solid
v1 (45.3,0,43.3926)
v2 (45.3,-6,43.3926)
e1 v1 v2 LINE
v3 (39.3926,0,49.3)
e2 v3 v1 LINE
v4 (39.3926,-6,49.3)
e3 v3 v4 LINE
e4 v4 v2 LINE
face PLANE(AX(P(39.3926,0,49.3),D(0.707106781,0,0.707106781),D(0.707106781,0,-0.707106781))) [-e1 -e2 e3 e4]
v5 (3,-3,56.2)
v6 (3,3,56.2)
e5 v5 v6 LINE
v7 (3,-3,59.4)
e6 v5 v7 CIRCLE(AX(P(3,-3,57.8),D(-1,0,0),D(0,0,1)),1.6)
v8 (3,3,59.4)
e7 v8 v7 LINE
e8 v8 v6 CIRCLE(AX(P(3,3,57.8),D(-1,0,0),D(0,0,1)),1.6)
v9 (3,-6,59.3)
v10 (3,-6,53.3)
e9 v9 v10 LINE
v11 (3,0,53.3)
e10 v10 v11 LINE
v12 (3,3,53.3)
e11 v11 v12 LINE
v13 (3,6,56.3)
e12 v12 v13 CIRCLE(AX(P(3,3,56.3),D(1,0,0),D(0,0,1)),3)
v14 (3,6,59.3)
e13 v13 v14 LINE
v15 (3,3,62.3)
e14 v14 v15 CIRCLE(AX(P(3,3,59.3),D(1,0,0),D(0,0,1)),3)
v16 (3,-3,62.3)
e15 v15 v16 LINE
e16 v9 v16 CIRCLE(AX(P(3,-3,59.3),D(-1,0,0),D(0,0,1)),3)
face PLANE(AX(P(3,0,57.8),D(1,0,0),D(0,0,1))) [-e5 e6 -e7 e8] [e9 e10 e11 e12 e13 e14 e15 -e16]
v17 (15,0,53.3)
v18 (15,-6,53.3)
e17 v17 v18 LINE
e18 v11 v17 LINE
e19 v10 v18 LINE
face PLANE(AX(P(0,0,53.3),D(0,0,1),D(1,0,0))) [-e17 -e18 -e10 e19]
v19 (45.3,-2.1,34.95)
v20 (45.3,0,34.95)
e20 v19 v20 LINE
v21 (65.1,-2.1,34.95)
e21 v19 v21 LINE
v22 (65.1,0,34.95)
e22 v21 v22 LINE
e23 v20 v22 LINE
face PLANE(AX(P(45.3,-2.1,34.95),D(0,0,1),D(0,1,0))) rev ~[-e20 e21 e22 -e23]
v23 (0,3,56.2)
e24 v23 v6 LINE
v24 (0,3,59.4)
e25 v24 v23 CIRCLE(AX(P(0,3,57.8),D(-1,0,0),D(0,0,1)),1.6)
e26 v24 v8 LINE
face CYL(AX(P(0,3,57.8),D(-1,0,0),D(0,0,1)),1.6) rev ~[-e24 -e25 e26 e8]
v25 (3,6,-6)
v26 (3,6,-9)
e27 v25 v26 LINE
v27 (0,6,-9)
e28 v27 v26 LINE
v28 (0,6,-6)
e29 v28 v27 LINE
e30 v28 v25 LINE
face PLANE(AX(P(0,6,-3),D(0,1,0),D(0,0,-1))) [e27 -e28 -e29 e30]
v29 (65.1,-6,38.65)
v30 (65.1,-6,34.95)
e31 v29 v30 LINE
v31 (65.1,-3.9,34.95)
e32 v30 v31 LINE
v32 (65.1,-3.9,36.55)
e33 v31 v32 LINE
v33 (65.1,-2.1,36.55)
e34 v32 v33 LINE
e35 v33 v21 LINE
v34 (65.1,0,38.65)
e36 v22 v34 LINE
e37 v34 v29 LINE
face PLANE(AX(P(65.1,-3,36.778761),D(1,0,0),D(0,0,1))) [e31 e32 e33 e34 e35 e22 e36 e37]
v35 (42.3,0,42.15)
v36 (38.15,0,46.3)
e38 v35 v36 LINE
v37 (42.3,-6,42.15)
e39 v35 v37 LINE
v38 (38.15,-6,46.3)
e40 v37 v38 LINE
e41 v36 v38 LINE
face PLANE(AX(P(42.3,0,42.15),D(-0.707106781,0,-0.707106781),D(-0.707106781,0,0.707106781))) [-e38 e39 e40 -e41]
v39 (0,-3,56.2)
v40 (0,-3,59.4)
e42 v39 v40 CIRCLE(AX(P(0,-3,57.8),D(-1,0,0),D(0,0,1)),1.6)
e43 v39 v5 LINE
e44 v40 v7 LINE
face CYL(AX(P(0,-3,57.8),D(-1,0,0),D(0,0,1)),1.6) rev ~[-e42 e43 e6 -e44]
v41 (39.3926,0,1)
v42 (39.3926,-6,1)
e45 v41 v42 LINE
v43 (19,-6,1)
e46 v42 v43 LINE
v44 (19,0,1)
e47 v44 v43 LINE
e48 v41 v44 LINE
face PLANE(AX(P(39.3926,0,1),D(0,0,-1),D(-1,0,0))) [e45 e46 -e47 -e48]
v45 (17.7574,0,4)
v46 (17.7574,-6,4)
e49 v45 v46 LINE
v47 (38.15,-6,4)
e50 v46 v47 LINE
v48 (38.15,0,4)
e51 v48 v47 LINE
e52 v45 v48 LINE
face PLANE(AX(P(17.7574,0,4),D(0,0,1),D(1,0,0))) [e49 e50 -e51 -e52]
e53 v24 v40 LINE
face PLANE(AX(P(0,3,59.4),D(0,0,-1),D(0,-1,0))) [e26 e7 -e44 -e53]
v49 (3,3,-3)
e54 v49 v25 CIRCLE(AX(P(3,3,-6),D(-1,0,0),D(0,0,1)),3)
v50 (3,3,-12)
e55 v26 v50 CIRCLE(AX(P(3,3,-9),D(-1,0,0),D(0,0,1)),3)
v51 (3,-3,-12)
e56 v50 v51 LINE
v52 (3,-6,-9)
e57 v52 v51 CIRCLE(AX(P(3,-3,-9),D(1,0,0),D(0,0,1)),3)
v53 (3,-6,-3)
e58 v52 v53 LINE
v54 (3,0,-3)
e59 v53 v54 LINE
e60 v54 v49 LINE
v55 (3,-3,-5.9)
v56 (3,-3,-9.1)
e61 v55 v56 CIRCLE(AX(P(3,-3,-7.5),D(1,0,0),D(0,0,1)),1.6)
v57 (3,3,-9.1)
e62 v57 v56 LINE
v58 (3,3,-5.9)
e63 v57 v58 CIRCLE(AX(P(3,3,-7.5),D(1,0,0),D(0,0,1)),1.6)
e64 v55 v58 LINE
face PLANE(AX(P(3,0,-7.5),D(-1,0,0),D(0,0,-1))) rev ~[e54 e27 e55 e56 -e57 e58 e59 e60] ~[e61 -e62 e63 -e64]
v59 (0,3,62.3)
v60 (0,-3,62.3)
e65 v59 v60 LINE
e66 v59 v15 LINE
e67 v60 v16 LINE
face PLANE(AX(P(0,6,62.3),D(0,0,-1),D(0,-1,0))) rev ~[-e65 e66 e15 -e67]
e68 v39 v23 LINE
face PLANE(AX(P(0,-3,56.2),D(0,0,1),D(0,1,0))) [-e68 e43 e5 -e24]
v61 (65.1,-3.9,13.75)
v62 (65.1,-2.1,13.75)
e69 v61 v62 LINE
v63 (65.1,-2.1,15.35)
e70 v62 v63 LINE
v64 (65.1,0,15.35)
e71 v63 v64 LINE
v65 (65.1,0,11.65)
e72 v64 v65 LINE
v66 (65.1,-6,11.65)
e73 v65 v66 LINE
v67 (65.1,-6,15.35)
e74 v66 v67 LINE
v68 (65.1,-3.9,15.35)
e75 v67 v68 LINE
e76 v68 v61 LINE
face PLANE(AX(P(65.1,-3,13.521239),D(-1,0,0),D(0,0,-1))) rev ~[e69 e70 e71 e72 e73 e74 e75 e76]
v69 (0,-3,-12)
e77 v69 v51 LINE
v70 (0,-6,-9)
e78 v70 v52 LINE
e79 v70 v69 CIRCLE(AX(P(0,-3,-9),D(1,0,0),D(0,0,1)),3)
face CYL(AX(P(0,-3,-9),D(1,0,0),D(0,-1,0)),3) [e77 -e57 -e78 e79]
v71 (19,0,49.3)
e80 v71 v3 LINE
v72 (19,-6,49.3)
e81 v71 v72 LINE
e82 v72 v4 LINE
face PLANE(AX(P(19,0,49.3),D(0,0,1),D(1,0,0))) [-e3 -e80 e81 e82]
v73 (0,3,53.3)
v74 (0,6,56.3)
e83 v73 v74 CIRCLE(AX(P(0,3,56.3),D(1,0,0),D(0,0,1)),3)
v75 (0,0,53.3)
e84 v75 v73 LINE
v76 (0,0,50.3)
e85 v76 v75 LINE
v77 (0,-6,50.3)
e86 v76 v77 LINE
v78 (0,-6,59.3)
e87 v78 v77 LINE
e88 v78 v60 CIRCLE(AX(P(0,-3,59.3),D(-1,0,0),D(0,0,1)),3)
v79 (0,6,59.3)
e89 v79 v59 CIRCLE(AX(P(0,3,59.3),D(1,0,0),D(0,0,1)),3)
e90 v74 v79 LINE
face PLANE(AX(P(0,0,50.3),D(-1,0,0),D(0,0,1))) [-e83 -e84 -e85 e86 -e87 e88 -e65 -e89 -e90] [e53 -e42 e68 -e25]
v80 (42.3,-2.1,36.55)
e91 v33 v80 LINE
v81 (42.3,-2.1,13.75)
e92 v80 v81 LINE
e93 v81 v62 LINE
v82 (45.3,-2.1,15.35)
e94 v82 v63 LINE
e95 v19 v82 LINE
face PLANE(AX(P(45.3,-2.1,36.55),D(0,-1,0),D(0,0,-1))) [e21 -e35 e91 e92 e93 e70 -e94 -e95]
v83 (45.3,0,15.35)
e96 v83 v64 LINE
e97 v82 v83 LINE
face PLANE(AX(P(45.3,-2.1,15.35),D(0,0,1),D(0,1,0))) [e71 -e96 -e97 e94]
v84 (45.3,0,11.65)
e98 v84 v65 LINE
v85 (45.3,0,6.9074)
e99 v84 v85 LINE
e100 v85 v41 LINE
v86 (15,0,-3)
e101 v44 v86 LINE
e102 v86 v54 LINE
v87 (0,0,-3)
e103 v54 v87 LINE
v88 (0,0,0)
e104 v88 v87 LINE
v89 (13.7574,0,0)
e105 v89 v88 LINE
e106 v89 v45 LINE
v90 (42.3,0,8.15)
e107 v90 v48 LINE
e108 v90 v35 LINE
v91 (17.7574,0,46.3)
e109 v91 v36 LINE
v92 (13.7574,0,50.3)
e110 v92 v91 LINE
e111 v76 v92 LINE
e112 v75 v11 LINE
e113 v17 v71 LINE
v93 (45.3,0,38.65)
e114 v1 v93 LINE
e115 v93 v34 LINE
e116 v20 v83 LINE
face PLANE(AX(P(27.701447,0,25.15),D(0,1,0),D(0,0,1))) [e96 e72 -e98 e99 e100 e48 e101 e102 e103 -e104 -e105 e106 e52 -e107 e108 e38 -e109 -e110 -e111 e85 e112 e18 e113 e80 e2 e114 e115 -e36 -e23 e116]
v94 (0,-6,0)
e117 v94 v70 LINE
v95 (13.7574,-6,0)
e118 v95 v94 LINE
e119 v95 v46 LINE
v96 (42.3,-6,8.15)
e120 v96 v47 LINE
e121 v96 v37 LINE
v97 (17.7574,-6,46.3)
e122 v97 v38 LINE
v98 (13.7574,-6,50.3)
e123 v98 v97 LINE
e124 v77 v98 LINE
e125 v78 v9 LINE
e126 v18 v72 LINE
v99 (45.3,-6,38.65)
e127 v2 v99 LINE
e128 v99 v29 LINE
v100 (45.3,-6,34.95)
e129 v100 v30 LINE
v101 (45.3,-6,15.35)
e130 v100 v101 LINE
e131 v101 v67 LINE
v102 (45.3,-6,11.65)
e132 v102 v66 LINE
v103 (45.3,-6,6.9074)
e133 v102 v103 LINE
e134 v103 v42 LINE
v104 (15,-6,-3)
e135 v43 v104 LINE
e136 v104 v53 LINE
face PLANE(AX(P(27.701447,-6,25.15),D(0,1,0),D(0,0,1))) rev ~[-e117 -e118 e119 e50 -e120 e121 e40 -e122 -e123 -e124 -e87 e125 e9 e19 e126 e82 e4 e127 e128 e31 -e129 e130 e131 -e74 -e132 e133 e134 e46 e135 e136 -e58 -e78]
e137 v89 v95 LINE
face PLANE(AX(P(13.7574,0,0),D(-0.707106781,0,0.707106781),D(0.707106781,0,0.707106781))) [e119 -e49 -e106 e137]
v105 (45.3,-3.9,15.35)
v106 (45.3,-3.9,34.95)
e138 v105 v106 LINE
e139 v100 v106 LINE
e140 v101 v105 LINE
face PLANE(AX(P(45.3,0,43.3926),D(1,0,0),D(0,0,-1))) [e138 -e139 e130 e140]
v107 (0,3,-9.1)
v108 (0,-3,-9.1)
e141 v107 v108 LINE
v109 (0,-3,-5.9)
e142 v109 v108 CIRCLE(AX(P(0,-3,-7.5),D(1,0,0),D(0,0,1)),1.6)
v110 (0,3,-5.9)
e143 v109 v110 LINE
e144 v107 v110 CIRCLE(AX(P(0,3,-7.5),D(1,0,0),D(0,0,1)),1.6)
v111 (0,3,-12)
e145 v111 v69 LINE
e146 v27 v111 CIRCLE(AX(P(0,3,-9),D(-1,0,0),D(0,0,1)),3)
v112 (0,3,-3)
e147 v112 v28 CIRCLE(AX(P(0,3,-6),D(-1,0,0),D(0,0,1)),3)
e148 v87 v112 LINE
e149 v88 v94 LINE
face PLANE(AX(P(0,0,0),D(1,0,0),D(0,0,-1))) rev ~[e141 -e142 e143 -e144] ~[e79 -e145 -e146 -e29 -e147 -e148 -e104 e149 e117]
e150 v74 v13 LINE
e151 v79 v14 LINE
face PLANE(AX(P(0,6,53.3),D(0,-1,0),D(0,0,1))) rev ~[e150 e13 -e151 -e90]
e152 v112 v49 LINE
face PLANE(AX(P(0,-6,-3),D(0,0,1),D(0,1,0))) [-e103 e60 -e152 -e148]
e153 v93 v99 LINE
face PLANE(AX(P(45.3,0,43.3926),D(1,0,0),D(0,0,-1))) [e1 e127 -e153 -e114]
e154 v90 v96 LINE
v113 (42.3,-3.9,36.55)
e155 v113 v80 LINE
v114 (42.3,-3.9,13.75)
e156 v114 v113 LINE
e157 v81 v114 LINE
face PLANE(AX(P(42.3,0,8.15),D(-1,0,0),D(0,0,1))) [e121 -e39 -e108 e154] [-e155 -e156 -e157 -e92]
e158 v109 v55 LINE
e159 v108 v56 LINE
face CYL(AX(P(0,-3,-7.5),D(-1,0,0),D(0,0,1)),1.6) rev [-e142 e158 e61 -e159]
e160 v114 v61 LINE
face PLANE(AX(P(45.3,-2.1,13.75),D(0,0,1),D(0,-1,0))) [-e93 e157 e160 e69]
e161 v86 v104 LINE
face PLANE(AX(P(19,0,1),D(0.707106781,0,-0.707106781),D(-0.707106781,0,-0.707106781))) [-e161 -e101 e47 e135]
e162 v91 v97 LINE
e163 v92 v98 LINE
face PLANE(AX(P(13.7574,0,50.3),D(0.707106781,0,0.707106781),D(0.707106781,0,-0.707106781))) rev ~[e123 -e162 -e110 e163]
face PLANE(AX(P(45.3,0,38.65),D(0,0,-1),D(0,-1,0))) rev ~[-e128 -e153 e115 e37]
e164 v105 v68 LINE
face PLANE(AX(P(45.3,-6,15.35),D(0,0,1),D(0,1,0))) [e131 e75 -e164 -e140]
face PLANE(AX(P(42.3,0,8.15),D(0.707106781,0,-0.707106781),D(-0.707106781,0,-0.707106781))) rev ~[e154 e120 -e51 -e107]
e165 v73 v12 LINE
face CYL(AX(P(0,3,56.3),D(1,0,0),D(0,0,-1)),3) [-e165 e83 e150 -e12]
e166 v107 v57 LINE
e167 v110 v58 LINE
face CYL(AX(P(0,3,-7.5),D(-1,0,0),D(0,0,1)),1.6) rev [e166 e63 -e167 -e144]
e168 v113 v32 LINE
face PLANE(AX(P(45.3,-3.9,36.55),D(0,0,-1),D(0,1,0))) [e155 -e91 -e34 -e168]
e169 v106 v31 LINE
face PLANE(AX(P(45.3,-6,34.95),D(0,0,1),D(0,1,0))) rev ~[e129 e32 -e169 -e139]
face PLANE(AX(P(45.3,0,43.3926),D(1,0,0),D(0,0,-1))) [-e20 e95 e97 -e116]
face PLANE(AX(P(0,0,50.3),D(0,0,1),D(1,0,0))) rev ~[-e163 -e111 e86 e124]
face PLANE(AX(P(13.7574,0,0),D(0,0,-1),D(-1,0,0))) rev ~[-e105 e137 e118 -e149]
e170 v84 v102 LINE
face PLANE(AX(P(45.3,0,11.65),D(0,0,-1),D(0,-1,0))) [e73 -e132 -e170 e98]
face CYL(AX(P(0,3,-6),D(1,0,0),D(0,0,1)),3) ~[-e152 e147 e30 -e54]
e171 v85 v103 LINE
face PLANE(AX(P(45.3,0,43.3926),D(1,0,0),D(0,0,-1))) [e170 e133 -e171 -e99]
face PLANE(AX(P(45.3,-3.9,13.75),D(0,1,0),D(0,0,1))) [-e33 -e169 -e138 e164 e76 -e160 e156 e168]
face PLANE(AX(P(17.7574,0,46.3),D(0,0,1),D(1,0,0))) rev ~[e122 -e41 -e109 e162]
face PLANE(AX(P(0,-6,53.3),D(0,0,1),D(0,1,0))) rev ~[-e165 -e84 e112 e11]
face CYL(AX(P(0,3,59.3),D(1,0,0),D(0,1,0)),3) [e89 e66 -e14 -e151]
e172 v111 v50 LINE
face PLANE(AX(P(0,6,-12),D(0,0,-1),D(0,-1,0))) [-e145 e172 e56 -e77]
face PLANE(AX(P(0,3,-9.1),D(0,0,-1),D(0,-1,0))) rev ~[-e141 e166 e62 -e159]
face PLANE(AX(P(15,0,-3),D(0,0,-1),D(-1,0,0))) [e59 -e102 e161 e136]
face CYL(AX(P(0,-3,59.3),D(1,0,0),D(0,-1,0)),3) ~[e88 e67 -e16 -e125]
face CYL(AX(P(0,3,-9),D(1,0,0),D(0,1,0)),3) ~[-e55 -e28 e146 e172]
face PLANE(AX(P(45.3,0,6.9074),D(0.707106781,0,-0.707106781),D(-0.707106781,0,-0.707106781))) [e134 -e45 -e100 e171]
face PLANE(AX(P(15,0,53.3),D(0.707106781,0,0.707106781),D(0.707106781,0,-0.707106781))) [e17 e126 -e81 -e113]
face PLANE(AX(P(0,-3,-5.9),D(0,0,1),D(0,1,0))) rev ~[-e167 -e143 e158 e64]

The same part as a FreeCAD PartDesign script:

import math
import FreeCAD as App
import Part
import Sketcher

V = App.Vector


def edges_at(feature, points):
    """Names of the edges that pass closest to the given points."""
    edges = feature.Shape.Edges
    near = lambda p: min(range(len(edges)), key=lambda i: edges[i].distToShape(Part.Vertex(*p))[0])
    return sorted({f"Edge{near(p) + 1}" for p in points})


def add_polygon(sketch, points):
    """Adds a closed chain of lines whose ends are joined by coincident constraints."""
    first, n = sketch.GeometryCount, len(points)
    for a, b in zip(points, points[1:] + points[:1]):
        sketch.addGeometry(Part.LineSegment(App.Vector(*a, 0), App.Vector(*b, 0)), False)
    for i in range(n):
        sketch.addConstraint(Sketcher.Constraint("Coincident", first + i, 2, first + (i + 1) % n, 1))

doc = App.newDocument("Part")
body = doc.addObject("PartDesign::Body", "Body")

# Sketch on XZ plane
sketch1 = body.newObject("Sketcher::SketchObject", "Sketch")
sketch1.AttachmentSupport = (doc.getObject("XZ_Plane"), [""])
sketch1.MapMode = "FlatFace"
add_polygon(sketch1, [(45.3, 6.9), (45.3, 43.4), (39.4, 49.3), (19, 49.3), (15, 53.3), (0, 53.3), (0, 50.3), (13.8, 50.3), (17.8, 46.3), (38.1, 46.3), (42.3, 42.1), (42.3, 8.2), (38.1, 4), (17.8, 4), (13.8, 0), (0, 0), (0, -3), (15, -3), (19, 1), (39.4, 1)])  # lines 0-19
sketch1.addConstraint(Sketcher.Constraint("Vertical", 0))
sketch1.addConstraint(Sketcher.Constraint("Horizontal", 2))
sketch1.addConstraint(Sketcher.Constraint("Horizontal", 4))
sketch1.addConstraint(Sketcher.Constraint("Vertical", 5))
sketch1.addConstraint(Sketcher.Constraint("Horizontal", 6))
sketch1.addConstraint(Sketcher.Constraint("Horizontal", 8))
sketch1.addConstraint(Sketcher.Constraint("Vertical", 10))
sketch1.addConstraint(Sketcher.Constraint("Horizontal", 12))
sketch1.addConstraint(Sketcher.Constraint("Horizontal", 14))
sketch1.addConstraint(Sketcher.Constraint("Vertical", 15))
sketch1.addConstraint(Sketcher.Constraint("Horizontal", 16))
sketch1.addConstraint(Sketcher.Constraint("Horizontal", 18))
sketch1.addConstraint(Sketcher.Constraint("Coincident", 14, 2, -1, 1))
sketch1.addConstraint(Sketcher.Constraint("PointOnObject", 4, 2, -2))
sketch1.addConstraint(Sketcher.Constraint("Parallel", 1, 3))
sketch1.addConstraint(Sketcher.Constraint("Parallel", 3, 7))
sketch1.addConstraint(Sketcher.Constraint("Parallel", 7, 9))
sketch1.addConstraint(Sketcher.Constraint("Perpendicular", 9, 11))
sketch1.addConstraint(Sketcher.Constraint("Parallel", 11, 13))
sketch1.addConstraint(Sketcher.Constraint("Parallel", 13, 17))
sketch1.addConstraint(Sketcher.Constraint("Parallel", 17, 19))
sketch1.addConstraint(Sketcher.Constraint("Vertical", 8, 2, 11, 2))
sketch1.addConstraint(Sketcher.Constraint("Vertical", 7, 2, 12, 2))
sketch1.addConstraint(Sketcher.Constraint("Vertical", 6, 2, 13, 2))
sketch1.addConstraint(Sketcher.Constraint("Vertical", 3, 2, 16, 2))
sketch1.addConstraint(Sketcher.Constraint("Vertical", 2, 2, 17, 2))
sketch1.addConstraint(Sketcher.Constraint("Vertical", 1, 2, 18, 2))
sketch1.addConstraint(Sketcher.Constraint("Equal", 2, 8))
sketch1.addConstraint(Sketcher.Constraint("Equal", 5, 15))
sketch1.addConstraint(Sketcher.Constraint("Equal", 3, 7))
sketch1.addConstraint(Sketcher.Constraint("Equal", 9, 11))
sketch1.addConstraint(Sketcher.Constraint("DistanceX", 4, 2, 4, 1, 15.0))
sketch1.addConstraint(Sketcher.Constraint("DistanceY", 5, 2, 5, 1, 3.0))
sketch1.addConstraint(Sketcher.Constraint("DistanceY", 10, 2, 10, 1, 34.0))
sketch1.addConstraint(Sketcher.Constraint("DistanceX", -1, 1, 2, 2, 19.0))
sketch1.addConstraint(Sketcher.Constraint("DistanceX", 9, 2, 0, 2, 3.0))
sketch1.addConstraint(Sketcher.Constraint("DistanceX", -1, 1, 0, 2, 45.3))
sketch1.addConstraint(Sketcher.Constraint("DistanceY", -1, 1, 1, 2, 49.3))
sketch1.addConstraint(Sketcher.Constraint("DistanceX", 2, 2, 2, 1, 20.3926))
pad1 = body.newObject("PartDesign::Pad", "Pad")
pad1.Profile = sketch1
pad1.Length = 6

# Sketch on YZ plane
sketch2 = body.newObject("Sketcher::SketchObject", "Sketch001")
sketch2.AttachmentSupport = (doc.getObject("YZ_Plane"), [""])
sketch2.MapMode = "FlatFace"
sketch2.AttachmentOffset = App.Placement(V(0, 0, 45.3), App.Rotation())
add_polygon(sketch2, [(-2.1, 13.8), (-2.1, 36.5), (-3.9, 36.5), (-3.9, 13.8)])  # lines 0-3
sketch2.addConstraint(Sketcher.Constraint("Vertical", 0))
sketch2.addConstraint(Sketcher.Constraint("Horizontal", 1))
sketch2.addConstraint(Sketcher.Constraint("Vertical", 2))
sketch2.addConstraint(Sketcher.Constraint("Horizontal", 3))
sketch2.addConstraint(Sketcher.Constraint("DistanceX", 1, 2, 1, 1, 1.8))
sketch2.addConstraint(Sketcher.Constraint("DistanceY", 0, 1, 0, 2, 22.8))
sketch2.addConstraint(Sketcher.Constraint("DistanceX", 0, 2, -1, 1, 2.1))
sketch2.addConstraint(Sketcher.Constraint("DistanceY", -1, 1, 0, 2, 36.55))
pocket1 = body.newObject("PartDesign::Pocket", "Pocket")
pocket1.Profile = sketch2
pocket1.Length = 3

# Sketch on YZ plane
sketch3 = body.newObject("Sketcher::SketchObject", "Sketch002")
sketch3.AttachmentSupport = (doc.getObject("YZ_Plane"), [""])
sketch3.MapMode = "FlatFace"
sketch3.AttachmentOffset = App.Placement(V(0, 0, 45.3), App.Rotation())
add_polygon(sketch3, [(0, 35), (0, 38.6), (-6, 38.6), (-6, 35), (-3.9, 35), (-3.9, 36.5), (-2.1, 36.5), (-2.1, 35)])  # lines 0-7
add_polygon(sketch3, [(-3.9, 15.3), (-6, 15.3), (-6, 11.7), (0, 11.7), (0, 15.3), (-2.1, 15.3), (-2.1, 13.8), (-3.9, 13.8)])  # lines 8-15
sketch3.addConstraint(Sketcher.Constraint("Vertical", 0))
sketch3.addConstraint(Sketcher.Constraint("Horizontal", 1))
sketch3.addConstraint(Sketcher.Constraint("Vertical", 2))
sketch3.addConstraint(Sketcher.Constraint("Horizontal", 3))
sketch3.addConstraint(Sketcher.Constraint("Vertical", 4))
sketch3.addConstraint(Sketcher.Constraint("Horizontal", 5))
sketch3.addConstraint(Sketcher.Constraint("Vertical", 6))
sketch3.addConstraint(Sketcher.Constraint("Horizontal", 7))
sketch3.addConstraint(Sketcher.Constraint("Horizontal", 8))
sketch3.addConstraint(Sketcher.Constraint("Vertical", 9))
sketch3.addConstraint(Sketcher.Constraint("Horizontal", 10))
sketch3.addConstraint(Sketcher.Constraint("Vertical", 11))
sketch3.addConstraint(Sketcher.Constraint("Horizontal", 12))
sketch3.addConstraint(Sketcher.Constraint("Vertical", 13))
sketch3.addConstraint(Sketcher.Constraint("Horizontal", 14))
sketch3.addConstraint(Sketcher.Constraint("Vertical", 15))
sketch3.addConstraint(Sketcher.Constraint("PointOnObject", 0, 2, -2))
sketch3.addConstraint(Sketcher.Constraint("PointOnObject", 10, 2, -2))
sketch3.addConstraint(Sketcher.Constraint("Horizontal", 3, 2, 6, 2))
sketch3.addConstraint(Sketcher.Constraint("Horizontal", 8, 2, 11, 2))
sketch3.addConstraint(Sketcher.Constraint("Vertical", 2, 2, 8, 2))
sketch3.addConstraint(Sketcher.Constraint("Vertical", 6, 2, 12, 2))
sketch3.addConstraint(Sketcher.Constraint("Vertical", 4, 2, 14, 2))
sketch3.addConstraint(Sketcher.Constraint("Equal", 3, 7))
sketch3.addConstraint(Sketcher.Constraint("Equal", 2, 9))
sketch3.addConstraint(Sketcher.Constraint("Equal", 6, 13))
sketch3.addConstraint(Sketcher.Constraint("DistanceX", 1, 2, 1, 1, 6.0))
sketch3.addConstraint(Sketcher.Constraint("DistanceX", 3, 1, 3, 2, 2.1))
sketch3.addConstraint(Sketcher.Constraint("DistanceY", 0, 1, 0, 2, 3.7))
sketch3.addConstraint(Sketcher.Constraint("DistanceY", 4, 1, 4, 2, 1.6))
sketch3.addConstraint(Sketcher.Constraint("DistanceY", 8, 2, 2, 2, 19.6))
sketch3.addConstraint(Sketcher.Constraint("DistanceY", -1, 1, 0, 2, 38.65))
pad2 = body.newObject("PartDesign::Pad", "Pad001")
pad2.Profile = sketch3
pad2.Length = 19.8

# Sketch on YZ plane
sketch4 = body.newObject("Sketcher::SketchObject", "Sketch003")
sketch4.AttachmentSupport = (doc.getObject("YZ_Plane"), [""])
sketch4.MapMode = "FlatFace"
add_polygon(sketch4, [(-6, -12), (-6, -3), (6, -3), (6, -12)])  # lines 0-3
sketch4.addGeometry(Part.LineSegment(V(-3, -9.1, 0), V(3, -9.1, 0)), False)  # 4
sketch4.addGeometry(Part.ArcOfCircle(Part.Circle(V(3, -7.5, 0), V(0, 0, 1), 1.6), math.radians(-90), math.radians(90)), False)  # 5
sketch4.addGeometry(Part.LineSegment(V(3, -5.9, 0), V(-3, -5.9, 0)), False)  # 6
sketch4.addGeometry(Part.ArcOfCircle(Part.Circle(V(-3, -7.5, 0), V(0, 0, 1), 1.6), math.radians(90), math.radians(270)), False)  # 7
add_polygon(sketch4, [(6, 53.3), (-6, 53.3), (-6, 62.3), (6, 62.3)])  # lines 8-11
sketch4.addGeometry(Part.ArcOfCircle(Part.Circle(V(3, 57.8, 0), V(0, 0, 1), 1.6), math.radians(-90), math.radians(90)), False)  # 12
sketch4.addGeometry(Part.LineSegment(V(3, 59.4, 0), V(-3, 59.4, 0)), False)  # 13
sketch4.addGeometry(Part.ArcOfCircle(Part.Circle(V(-3, 57.8, 0), V(0, 0, 1), 1.6), math.radians(90), math.radians(270)), False)  # 14
sketch4.addGeometry(Part.LineSegment(V(-3, 56.2, 0), V(3, 56.2, 0)), False)  # 15
sketch4.addConstraint(Sketcher.Constraint("Tangent", 4, 2, 5, 1))
sketch4.addConstraint(Sketcher.Constraint("Tangent", 5, 2, 6, 1))
sketch4.addConstraint(Sketcher.Constraint("Tangent", 6, 2, 7, 1))
sketch4.addConstraint(Sketcher.Constraint("Tangent", 7, 2, 4, 1))
sketch4.addConstraint(Sketcher.Constraint("Tangent", 12, 2, 13, 1))
sketch4.addConstraint(Sketcher.Constraint("Tangent", 13, 2, 14, 1))
sketch4.addConstraint(Sketcher.Constraint("Tangent", 14, 2, 15, 1))
sketch4.addConstraint(Sketcher.Constraint("Tangent", 15, 2, 12, 1))
sketch4.addConstraint(Sketcher.Constraint("Vertical", 0))
sketch4.addConstraint(Sketcher.Constraint("Horizontal", 1))
sketch4.addConstraint(Sketcher.Constraint("Vertical", 2))
sketch4.addConstraint(Sketcher.Constraint("Horizontal", 3))
sketch4.addConstraint(Sketcher.Constraint("Horizontal", 4))
sketch4.addConstraint(Sketcher.Constraint("Horizontal", 6))
sketch4.addConstraint(Sketcher.Constraint("Horizontal", 8))
sketch4.addConstraint(Sketcher.Constraint("Vertical", 9))
sketch4.addConstraint(Sketcher.Constraint("Horizontal", 10))
sketch4.addConstraint(Sketcher.Constraint("Vertical", 11))
sketch4.addConstraint(Sketcher.Constraint("Horizontal", 13))
sketch4.addConstraint(Sketcher.Constraint("Horizontal", 15))
sketch4.addConstraint(Sketcher.Constraint("Equal", 7, 12))
sketch4.addConstraint(Sketcher.Constraint("Vertical", 5, 3, 12, 3))
sketch4.addConstraint(Sketcher.Constraint("Vertical", 7, 3, 14, 3))
sketch4.addConstraint(Sketcher.Constraint("Vertical", 3, 2, 8, 2))
sketch4.addConstraint(Sketcher.Constraint("Vertical", 2, 2, 10, 2))
sketch4.addConstraint(Sketcher.Constraint("Equal", 2, 9))
sketch4.addConstraint(Sketcher.Constraint("Radius", 5, 1.6))
sketch4.addConstraint(Sketcher.Constraint("DistanceX", 1, 1, 1, 2, 12.0))
sketch4.addConstraint(Sketcher.Constraint("DistanceX", 4, 1, 4, 2, 6.0))
sketch4.addConstraint(Sketcher.Constraint("DistanceY", 0, 1, 0, 2, 9.0))
sketch4.addConstraint(Sketcher.Constraint("DistanceX", -1, 1, 5, 3, 3.0))
sketch4.addConstraint(Sketcher.Constraint("DistanceX", 0, 2, -1, 1, 6.0))
sketch4.addConstraint(Sketcher.Constraint("DistanceY", 0, 2, -1, 1, 3.0))
sketch4.addConstraint(Sketcher.Constraint("DistanceY", 5, 3, -1, 1, 7.5))
sketch4.addConstraint(Sketcher.Constraint("DistanceY", -1, 1, 12, 3, 57.8))
sketch4.addConstraint(Sketcher.Constraint("DistanceY", -1, 1, 8, 2, 53.3))
pad3 = body.newObject("PartDesign::Pad", "Pad002")
pad3.Profile = sketch4
pad3.Length = 3
doc.recompute()

fillet = body.newObject("PartDesign::Fillet", "Fillet")
fillet.Base = (pad3, edges_at(pad3, [
    (1.5, -6, 62.3),
    (1.5, 6, 62.3),
    (1.5, 6, 53.3),
    (1.5, 6, -12),
    (1.5, 6, -3),
    (1.5, -6, -12),
]))
fillet.Radius = 3

doc.recompute()
